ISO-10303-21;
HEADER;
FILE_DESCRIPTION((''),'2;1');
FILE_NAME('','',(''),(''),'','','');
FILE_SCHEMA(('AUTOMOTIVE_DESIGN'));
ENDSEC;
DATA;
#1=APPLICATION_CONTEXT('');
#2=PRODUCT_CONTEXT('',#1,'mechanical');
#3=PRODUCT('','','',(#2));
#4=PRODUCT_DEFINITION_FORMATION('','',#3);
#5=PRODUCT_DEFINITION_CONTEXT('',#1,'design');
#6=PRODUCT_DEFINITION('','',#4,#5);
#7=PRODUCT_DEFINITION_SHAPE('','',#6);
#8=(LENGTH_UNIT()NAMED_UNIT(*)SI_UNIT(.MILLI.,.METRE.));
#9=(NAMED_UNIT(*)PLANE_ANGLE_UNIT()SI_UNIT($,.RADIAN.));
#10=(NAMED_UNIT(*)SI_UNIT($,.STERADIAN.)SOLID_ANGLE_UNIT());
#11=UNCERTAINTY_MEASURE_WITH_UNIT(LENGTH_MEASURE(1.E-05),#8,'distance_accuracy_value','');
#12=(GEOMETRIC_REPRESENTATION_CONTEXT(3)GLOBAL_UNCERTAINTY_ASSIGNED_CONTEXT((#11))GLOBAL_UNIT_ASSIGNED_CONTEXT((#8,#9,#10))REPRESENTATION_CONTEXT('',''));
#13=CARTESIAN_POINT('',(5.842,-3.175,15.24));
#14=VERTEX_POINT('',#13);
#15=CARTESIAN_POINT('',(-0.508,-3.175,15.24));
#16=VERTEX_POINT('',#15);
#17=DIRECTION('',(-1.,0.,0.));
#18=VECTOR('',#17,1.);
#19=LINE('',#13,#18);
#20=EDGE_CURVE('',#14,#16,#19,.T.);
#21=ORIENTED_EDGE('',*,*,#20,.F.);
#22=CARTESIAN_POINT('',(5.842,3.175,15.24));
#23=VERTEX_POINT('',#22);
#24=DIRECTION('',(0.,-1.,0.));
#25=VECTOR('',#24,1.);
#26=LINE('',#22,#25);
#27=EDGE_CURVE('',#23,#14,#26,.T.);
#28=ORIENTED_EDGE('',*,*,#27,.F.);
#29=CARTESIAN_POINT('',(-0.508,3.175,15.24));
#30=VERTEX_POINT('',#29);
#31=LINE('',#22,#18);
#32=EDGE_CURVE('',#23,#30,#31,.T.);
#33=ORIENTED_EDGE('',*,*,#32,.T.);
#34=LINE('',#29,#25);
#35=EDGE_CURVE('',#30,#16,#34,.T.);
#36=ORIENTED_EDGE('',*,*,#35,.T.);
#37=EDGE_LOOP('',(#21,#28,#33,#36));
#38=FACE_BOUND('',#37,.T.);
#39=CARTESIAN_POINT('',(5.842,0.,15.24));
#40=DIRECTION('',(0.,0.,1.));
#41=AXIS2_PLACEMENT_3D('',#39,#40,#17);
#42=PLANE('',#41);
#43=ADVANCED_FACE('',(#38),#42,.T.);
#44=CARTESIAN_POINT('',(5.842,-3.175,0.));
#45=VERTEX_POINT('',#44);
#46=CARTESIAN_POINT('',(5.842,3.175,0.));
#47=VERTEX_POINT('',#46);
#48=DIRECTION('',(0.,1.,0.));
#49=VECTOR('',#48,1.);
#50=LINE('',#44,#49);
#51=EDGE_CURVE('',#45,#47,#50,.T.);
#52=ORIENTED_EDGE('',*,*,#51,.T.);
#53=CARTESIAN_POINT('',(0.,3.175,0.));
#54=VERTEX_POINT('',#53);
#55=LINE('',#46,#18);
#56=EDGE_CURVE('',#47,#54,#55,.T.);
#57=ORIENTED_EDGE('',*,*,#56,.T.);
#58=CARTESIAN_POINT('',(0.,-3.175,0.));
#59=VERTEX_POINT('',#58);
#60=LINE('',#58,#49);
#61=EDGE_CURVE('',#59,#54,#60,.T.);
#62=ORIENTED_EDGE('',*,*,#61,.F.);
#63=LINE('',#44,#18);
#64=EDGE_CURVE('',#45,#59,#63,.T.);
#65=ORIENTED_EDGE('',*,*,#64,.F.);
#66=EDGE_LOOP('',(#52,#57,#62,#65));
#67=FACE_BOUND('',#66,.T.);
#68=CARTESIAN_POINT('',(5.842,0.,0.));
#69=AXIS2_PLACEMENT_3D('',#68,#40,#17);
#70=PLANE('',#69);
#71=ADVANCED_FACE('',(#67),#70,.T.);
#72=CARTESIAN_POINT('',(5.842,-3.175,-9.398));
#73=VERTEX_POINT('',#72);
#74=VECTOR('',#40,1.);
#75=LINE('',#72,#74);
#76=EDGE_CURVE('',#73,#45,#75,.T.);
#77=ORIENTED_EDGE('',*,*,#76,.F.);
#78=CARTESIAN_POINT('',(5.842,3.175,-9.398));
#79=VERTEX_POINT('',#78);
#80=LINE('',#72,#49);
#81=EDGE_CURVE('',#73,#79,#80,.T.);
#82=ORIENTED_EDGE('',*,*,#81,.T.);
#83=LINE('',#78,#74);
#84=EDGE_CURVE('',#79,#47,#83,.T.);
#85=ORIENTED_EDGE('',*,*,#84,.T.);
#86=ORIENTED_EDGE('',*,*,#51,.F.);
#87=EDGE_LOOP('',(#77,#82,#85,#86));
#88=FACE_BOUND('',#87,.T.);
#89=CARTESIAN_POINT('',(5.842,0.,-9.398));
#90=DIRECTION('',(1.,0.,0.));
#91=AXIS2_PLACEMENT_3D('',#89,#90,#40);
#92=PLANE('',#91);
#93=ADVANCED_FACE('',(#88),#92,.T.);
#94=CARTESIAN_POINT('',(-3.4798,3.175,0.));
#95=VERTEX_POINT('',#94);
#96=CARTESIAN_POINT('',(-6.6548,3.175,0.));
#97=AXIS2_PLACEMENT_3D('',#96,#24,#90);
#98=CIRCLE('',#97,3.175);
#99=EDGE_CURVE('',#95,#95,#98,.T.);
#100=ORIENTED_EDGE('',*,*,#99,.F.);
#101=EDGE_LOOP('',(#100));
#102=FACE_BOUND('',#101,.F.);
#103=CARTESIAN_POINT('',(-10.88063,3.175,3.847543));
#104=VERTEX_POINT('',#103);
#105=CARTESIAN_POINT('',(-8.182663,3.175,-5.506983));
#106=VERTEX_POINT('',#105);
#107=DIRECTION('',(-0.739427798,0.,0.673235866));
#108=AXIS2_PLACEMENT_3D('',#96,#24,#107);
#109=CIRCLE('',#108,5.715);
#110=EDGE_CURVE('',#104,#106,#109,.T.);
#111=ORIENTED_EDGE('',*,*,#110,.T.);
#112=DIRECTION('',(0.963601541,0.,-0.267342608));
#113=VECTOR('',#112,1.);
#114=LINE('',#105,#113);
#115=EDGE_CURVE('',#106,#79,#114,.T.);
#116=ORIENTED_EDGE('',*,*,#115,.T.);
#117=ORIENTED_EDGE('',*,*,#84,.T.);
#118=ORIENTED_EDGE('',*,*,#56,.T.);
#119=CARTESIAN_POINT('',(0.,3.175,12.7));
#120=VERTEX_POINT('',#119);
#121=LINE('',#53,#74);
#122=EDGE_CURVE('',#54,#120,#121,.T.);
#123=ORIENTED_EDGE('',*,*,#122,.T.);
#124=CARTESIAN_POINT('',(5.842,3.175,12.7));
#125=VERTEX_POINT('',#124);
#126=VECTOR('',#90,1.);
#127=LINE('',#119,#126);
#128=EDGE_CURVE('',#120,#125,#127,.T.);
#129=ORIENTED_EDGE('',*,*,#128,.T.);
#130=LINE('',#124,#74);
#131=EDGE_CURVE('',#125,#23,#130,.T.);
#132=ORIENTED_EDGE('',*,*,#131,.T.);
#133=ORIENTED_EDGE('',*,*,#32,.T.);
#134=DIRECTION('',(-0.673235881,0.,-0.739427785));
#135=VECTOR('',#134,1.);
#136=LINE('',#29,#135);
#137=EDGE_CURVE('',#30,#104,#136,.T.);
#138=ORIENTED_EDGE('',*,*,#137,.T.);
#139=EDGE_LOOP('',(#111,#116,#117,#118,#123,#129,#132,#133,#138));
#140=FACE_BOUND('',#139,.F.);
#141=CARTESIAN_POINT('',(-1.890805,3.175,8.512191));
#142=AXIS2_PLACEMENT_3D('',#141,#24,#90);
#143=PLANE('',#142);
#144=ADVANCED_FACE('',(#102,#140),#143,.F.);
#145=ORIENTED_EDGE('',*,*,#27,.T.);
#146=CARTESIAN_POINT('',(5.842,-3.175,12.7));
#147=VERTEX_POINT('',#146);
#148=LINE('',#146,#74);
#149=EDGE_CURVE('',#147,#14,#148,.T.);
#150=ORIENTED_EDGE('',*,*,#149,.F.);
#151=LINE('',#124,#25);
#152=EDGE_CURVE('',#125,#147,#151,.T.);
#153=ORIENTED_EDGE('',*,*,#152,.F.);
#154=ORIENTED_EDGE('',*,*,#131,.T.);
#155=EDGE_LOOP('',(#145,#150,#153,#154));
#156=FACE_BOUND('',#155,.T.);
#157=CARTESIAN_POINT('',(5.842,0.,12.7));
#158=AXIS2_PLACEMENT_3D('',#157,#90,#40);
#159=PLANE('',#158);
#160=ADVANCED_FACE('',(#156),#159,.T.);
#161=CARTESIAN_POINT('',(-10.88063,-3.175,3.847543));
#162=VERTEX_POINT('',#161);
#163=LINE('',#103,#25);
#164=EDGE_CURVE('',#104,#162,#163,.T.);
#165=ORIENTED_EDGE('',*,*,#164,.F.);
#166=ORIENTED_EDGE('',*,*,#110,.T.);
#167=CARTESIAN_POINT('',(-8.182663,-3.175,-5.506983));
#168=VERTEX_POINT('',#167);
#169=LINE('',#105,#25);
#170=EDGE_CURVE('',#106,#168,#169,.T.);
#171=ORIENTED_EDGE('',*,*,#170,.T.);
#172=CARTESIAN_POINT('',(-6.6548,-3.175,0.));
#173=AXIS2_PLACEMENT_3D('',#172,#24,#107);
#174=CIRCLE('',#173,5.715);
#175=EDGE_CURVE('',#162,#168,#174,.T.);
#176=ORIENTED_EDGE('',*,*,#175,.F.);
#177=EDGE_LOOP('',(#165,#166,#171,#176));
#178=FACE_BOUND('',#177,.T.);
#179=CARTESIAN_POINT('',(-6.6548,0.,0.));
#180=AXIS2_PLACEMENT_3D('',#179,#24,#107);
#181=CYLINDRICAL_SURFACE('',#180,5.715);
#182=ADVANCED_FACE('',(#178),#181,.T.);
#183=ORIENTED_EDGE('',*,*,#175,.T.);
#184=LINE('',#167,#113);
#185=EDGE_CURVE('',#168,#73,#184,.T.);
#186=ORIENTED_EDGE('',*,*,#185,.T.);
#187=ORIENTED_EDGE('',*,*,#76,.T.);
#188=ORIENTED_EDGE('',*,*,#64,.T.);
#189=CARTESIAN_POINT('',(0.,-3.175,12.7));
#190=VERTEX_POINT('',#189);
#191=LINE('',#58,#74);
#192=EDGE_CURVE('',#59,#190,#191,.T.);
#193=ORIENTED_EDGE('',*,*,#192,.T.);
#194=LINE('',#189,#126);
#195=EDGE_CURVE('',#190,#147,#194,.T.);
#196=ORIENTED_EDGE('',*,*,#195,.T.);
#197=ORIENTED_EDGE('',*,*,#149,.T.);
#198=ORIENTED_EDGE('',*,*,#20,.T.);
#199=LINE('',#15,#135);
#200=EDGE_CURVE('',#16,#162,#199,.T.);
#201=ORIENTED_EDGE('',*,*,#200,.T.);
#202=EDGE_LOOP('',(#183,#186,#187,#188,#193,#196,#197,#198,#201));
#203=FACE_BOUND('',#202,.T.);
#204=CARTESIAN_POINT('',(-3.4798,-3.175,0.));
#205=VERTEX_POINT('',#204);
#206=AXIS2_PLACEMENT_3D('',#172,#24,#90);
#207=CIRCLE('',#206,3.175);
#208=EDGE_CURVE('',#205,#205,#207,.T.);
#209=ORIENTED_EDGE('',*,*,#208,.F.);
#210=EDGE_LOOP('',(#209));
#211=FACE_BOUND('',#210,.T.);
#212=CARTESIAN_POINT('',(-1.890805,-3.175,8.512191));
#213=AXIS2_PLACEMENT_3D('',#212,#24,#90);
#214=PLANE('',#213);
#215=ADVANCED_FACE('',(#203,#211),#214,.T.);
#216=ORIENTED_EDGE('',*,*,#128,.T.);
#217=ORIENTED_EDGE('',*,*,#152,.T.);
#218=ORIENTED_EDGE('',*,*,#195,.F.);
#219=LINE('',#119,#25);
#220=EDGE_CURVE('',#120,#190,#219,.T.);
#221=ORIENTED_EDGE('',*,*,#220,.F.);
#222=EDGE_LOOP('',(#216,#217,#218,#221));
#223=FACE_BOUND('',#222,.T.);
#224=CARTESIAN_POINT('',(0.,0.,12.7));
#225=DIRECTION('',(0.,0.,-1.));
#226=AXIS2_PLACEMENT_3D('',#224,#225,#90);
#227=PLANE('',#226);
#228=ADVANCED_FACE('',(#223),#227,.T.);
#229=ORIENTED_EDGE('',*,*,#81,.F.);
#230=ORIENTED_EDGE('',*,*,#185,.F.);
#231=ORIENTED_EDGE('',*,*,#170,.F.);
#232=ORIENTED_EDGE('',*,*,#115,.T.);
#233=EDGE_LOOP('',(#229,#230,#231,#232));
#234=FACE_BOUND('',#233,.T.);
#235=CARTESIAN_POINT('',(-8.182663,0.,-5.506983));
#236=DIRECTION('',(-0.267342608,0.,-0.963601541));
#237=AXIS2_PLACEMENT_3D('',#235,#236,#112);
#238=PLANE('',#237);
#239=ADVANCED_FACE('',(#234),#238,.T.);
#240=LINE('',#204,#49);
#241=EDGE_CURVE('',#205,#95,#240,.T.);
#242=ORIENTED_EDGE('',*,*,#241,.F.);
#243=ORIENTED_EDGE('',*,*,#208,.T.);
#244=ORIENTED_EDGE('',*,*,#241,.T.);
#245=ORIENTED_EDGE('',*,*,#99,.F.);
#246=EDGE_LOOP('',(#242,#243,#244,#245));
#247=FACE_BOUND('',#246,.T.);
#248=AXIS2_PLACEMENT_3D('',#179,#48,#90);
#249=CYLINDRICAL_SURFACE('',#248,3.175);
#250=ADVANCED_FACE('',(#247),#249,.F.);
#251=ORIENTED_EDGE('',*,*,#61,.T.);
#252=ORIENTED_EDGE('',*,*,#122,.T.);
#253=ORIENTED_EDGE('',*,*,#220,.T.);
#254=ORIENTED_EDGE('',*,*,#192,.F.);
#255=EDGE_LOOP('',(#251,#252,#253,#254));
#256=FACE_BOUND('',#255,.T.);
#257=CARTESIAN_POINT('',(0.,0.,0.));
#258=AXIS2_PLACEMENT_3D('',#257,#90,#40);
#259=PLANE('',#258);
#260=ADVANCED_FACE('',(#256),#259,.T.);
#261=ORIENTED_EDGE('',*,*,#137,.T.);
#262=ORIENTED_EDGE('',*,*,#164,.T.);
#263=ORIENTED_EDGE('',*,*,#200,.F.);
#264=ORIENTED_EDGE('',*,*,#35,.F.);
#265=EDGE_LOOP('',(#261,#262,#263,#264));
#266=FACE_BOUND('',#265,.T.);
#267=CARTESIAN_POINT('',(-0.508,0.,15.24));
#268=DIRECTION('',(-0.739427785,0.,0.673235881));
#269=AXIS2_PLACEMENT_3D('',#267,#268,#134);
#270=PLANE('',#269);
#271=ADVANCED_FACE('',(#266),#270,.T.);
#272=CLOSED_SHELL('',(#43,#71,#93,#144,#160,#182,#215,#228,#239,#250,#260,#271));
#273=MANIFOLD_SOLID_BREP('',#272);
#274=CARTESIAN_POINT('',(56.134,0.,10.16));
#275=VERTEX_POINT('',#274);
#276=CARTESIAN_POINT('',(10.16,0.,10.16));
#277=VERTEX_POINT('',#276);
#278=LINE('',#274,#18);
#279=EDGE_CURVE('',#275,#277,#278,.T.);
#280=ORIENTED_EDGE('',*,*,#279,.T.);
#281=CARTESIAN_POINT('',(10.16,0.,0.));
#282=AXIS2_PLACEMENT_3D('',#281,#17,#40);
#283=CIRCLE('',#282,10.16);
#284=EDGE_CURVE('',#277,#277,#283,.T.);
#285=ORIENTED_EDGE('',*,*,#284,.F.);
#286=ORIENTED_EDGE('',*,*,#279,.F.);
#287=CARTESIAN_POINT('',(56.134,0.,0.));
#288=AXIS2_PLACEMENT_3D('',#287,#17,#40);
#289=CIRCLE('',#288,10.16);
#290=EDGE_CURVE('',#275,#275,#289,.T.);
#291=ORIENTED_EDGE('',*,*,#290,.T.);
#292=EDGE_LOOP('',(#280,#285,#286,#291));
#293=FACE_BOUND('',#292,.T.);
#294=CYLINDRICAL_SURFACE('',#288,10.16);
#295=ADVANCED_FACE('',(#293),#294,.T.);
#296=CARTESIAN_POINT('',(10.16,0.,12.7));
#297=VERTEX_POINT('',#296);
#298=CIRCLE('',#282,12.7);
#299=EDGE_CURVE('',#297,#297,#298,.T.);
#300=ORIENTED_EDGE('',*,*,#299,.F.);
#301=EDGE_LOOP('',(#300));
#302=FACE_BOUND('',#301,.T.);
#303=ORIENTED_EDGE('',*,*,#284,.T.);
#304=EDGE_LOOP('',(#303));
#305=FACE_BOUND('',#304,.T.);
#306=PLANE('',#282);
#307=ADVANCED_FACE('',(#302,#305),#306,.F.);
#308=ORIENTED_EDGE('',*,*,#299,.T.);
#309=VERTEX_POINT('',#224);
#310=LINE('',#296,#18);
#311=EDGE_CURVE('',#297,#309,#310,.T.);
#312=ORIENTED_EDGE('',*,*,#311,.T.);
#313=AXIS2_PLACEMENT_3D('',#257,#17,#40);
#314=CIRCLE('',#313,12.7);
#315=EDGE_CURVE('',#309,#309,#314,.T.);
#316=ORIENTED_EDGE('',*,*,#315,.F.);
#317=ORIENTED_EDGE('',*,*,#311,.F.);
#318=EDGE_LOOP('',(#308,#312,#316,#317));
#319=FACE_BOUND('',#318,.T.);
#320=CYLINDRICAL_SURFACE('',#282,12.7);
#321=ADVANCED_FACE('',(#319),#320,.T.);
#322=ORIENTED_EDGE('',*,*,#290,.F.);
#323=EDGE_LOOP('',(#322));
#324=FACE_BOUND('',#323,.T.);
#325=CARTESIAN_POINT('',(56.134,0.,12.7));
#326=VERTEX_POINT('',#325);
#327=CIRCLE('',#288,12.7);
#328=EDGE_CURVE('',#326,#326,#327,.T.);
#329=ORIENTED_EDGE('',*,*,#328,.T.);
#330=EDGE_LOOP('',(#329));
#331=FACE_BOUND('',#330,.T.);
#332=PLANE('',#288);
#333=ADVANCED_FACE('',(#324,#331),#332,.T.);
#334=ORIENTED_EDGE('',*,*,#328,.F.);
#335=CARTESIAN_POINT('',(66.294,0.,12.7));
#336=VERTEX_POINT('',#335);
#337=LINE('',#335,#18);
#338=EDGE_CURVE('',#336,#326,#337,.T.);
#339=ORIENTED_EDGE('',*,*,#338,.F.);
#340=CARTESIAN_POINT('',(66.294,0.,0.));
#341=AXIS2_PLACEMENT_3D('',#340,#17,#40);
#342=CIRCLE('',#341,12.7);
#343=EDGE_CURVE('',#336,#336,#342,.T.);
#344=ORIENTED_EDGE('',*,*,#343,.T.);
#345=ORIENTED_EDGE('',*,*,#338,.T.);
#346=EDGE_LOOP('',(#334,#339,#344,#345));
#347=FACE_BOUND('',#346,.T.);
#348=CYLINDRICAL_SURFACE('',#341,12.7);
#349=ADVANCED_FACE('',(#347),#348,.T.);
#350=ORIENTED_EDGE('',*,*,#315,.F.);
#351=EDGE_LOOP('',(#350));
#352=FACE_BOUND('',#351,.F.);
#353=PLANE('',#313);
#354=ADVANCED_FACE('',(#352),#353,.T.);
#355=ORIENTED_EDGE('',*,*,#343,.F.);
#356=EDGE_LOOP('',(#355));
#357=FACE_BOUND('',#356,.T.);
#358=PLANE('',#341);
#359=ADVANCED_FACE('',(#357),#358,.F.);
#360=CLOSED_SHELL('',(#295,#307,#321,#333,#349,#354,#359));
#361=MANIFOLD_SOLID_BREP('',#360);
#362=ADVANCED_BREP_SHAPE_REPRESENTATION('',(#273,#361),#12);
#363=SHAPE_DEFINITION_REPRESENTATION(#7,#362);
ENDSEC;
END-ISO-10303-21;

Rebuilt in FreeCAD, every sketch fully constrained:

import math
import FreeCAD as App
import Part
import Sketcher
Q = App.Units.Quantity


def add_polygon(sketch, points):
    """Adds a closed chain of lines whose ends are joined by coincident constraints."""
    first, n = sketch.GeometryCount, len(points)
    for a, b in zip(points, points[1:] + points[:1]):
        sketch.addGeometry(Part.LineSegment(App.Vector(*a, 0), App.Vector(*b, 0)), False)
    for i in range(n):
        sketch.addConstraint(Sketcher.Constraint("Coincident", first + i, 2, first + (i + 1) % n, 1))

doc = App.newDocument("Part")
body = doc.addObject("PartDesign::Body", "Body")

# Sketch on XZ plane
sketch1 = body.newObject("Sketcher::SketchObject", "Sketch")
sketch1.AttachmentSupport = (doc.getObject("XZ_Plane"), [""])
sketch1.MapMode = "FlatFace"
sketch1.addGeometry([
    Part.LineSegment(App.Vector(0, 0, 0), App.Vector(0, 12.7, 0)),  # 0
    Part.LineSegment(App.Vector(0, 12.7, 0), App.Vector(5.8, 12.7, 0)),  # 1
    Part.LineSegment(App.Vector(5.8, 12.7, 0), App.Vector(5.8, 15.2, 0)),  # 2
    Part.LineSegment(App.Vector(5.8, 15.2, 0), App.Vector(-0.5, 15.2, 0)),  # 3
    Part.LineSegment(App.Vector(-0.5, 15.2, 0), App.Vector(-10.9, 3.8, 0)),  # 4
    Part.ArcOfCircle(Part.Circle(App.Vector(-6.7, 0, 0), App.Vector(0, 0, 1), 5.7), math.radians(138), math.radians(254)),  # 5
    Part.LineSegment(App.Vector(-8.2, -5.5, 0), App.Vector(5.8, -9.4, 0)),  # 6
    Part.LineSegment(App.Vector(5.8, -9.4, 0), App.Vector(5.8, 0, 0)),  # 7
    Part.LineSegment(App.Vector(5.8, 0, 0), App.Vector(0, 0, 0)),  # 8
    Part.Circle(App.Vector(-6.7, 0, 0), App.Vector(0, 0, 1), 3.2),  # 9
], False)
sketch1.addConstraint([
    Sketcher.Constraint("Coincident", 0, 2, 1, 1),
    Sketcher.Constraint("Coincident", 1, 2, 2, 1),
    Sketcher.Constraint("Coincident", 2, 2, 3, 1),
    Sketcher.Constraint("Coincident", 3, 2, 4, 1),
    Sketcher.Constraint("Tangent", 4, 2, 5, 1),
    Sketcher.Constraint("Tangent", 5, 2, 6, 1),
    Sketcher.Constraint("Coincident", 6, 2, 7, 1),
    Sketcher.Constraint("Coincident", 7, 2, 8, 1),
    Sketcher.Constraint("Coincident", 8, 2, 0, 1),
    Sketcher.Constraint("Vertical", 0),
    Sketcher.Constraint("Horizontal", 1),
    Sketcher.Constraint("Vertical", 2),
    Sketcher.Constraint("Horizontal", 3),
    Sketcher.Constraint("Vertical", 7),
    Sketcher.Constraint("Horizontal", 8),
    Sketcher.Constraint("Coincident", 8, 2, -1, 1),
    Sketcher.Constraint("Coincident", 9, 3, 5, 3),
    Sketcher.Constraint("PointOnObject", 5, 3, -1),
    Sketcher.Constraint("Vertical", 2, 2, 6, 2),
    Sketcher.Constraint("Diameter", 9, Q("0.25 in")),
    Sketcher.Constraint("DistanceY", 0, 1, 0, 2, Q("0.5 in")),
    Sketcher.Constraint("DistanceY", 2, 1, 2, 2, Q("0.1 in")),
    Sketcher.Constraint("Radius", 5, Q("0.225 in")),
    Sketcher.Constraint("DistanceX", 1, 1, 1, 2, Q("0.23 in")),
    Sketcher.Constraint("DistanceX", 3, 2, 3, 1, Q("0.25 in")),
    Sketcher.Constraint("DistanceY", 7, 1, 7, 2, Q("0.37 in")),
    Sketcher.Constraint("DistanceX", 5, 3, -1, 1, Q("0.262 in")),
])
pad1 = body.newObject("PartDesign::Pad", "Pad")
pad1.Profile = sketch1
pad1.Length = Q("0.25 in")
pad1.Midplane = True
body2 = doc.addObject("PartDesign::Body", "Body001")

# Sketch on XZ plane
sketch2 = body2.newObject("Sketcher::SketchObject", "Sketch001")
sketch2.AttachmentSupport = (doc.getObject("XZ_Plane001"), [""])
sketch2.MapMode = "FlatFace"
add_polygon(sketch2, [(66.3, 0), (66.3, 12.7), (56.1, 12.7), (56.1, 10.2), (10.2, 10.2), (10.2, 12.7), (0, 12.7), (0, 0)])  # lines 0-7
sketch2.addConstraint([
    Sketcher.Constraint("Vertical", 0),
    Sketcher.Constraint("Horizontal", 1),
    Sketcher.Constraint("Vertical", 2),
    Sketcher.Constraint("Horizontal", 3),
    Sketcher.Constraint("Vertical", 4),
    Sketcher.Constraint("Horizontal", 5),
    Sketcher.Constraint("Vertical", 6),
    Sketcher.Constraint("Horizontal", 7),
    Sketcher.Constraint("Coincident", 6, 2, -1, 1),
    Sketcher.Constraint("Horizontal", 1, 2, 4, 2),
    Sketcher.Constraint("Equal", 1, 5),
    Sketcher.Constraint("DistanceX", 1, 2, 1, 1, Q("0.4 in")),
    Sketcher.Constraint("DistanceY", 0, 1, 0, 2, Q("0.5 in")),
    Sketcher.Constraint("DistanceY", 2, 2, 2, 1, Q("0.1 in")),
    Sketcher.Constraint("DistanceX", 3, 2, 3, 1, Q("1.81 in")),
])
revolution = body2.newObject("PartDesign::Revolution", "Revolution")
revolution.Profile = sketch2
revolution.ReferenceAxis = (sketch2, ["H_Axis"])
revolution.Angle = 360

doc.recompute()
